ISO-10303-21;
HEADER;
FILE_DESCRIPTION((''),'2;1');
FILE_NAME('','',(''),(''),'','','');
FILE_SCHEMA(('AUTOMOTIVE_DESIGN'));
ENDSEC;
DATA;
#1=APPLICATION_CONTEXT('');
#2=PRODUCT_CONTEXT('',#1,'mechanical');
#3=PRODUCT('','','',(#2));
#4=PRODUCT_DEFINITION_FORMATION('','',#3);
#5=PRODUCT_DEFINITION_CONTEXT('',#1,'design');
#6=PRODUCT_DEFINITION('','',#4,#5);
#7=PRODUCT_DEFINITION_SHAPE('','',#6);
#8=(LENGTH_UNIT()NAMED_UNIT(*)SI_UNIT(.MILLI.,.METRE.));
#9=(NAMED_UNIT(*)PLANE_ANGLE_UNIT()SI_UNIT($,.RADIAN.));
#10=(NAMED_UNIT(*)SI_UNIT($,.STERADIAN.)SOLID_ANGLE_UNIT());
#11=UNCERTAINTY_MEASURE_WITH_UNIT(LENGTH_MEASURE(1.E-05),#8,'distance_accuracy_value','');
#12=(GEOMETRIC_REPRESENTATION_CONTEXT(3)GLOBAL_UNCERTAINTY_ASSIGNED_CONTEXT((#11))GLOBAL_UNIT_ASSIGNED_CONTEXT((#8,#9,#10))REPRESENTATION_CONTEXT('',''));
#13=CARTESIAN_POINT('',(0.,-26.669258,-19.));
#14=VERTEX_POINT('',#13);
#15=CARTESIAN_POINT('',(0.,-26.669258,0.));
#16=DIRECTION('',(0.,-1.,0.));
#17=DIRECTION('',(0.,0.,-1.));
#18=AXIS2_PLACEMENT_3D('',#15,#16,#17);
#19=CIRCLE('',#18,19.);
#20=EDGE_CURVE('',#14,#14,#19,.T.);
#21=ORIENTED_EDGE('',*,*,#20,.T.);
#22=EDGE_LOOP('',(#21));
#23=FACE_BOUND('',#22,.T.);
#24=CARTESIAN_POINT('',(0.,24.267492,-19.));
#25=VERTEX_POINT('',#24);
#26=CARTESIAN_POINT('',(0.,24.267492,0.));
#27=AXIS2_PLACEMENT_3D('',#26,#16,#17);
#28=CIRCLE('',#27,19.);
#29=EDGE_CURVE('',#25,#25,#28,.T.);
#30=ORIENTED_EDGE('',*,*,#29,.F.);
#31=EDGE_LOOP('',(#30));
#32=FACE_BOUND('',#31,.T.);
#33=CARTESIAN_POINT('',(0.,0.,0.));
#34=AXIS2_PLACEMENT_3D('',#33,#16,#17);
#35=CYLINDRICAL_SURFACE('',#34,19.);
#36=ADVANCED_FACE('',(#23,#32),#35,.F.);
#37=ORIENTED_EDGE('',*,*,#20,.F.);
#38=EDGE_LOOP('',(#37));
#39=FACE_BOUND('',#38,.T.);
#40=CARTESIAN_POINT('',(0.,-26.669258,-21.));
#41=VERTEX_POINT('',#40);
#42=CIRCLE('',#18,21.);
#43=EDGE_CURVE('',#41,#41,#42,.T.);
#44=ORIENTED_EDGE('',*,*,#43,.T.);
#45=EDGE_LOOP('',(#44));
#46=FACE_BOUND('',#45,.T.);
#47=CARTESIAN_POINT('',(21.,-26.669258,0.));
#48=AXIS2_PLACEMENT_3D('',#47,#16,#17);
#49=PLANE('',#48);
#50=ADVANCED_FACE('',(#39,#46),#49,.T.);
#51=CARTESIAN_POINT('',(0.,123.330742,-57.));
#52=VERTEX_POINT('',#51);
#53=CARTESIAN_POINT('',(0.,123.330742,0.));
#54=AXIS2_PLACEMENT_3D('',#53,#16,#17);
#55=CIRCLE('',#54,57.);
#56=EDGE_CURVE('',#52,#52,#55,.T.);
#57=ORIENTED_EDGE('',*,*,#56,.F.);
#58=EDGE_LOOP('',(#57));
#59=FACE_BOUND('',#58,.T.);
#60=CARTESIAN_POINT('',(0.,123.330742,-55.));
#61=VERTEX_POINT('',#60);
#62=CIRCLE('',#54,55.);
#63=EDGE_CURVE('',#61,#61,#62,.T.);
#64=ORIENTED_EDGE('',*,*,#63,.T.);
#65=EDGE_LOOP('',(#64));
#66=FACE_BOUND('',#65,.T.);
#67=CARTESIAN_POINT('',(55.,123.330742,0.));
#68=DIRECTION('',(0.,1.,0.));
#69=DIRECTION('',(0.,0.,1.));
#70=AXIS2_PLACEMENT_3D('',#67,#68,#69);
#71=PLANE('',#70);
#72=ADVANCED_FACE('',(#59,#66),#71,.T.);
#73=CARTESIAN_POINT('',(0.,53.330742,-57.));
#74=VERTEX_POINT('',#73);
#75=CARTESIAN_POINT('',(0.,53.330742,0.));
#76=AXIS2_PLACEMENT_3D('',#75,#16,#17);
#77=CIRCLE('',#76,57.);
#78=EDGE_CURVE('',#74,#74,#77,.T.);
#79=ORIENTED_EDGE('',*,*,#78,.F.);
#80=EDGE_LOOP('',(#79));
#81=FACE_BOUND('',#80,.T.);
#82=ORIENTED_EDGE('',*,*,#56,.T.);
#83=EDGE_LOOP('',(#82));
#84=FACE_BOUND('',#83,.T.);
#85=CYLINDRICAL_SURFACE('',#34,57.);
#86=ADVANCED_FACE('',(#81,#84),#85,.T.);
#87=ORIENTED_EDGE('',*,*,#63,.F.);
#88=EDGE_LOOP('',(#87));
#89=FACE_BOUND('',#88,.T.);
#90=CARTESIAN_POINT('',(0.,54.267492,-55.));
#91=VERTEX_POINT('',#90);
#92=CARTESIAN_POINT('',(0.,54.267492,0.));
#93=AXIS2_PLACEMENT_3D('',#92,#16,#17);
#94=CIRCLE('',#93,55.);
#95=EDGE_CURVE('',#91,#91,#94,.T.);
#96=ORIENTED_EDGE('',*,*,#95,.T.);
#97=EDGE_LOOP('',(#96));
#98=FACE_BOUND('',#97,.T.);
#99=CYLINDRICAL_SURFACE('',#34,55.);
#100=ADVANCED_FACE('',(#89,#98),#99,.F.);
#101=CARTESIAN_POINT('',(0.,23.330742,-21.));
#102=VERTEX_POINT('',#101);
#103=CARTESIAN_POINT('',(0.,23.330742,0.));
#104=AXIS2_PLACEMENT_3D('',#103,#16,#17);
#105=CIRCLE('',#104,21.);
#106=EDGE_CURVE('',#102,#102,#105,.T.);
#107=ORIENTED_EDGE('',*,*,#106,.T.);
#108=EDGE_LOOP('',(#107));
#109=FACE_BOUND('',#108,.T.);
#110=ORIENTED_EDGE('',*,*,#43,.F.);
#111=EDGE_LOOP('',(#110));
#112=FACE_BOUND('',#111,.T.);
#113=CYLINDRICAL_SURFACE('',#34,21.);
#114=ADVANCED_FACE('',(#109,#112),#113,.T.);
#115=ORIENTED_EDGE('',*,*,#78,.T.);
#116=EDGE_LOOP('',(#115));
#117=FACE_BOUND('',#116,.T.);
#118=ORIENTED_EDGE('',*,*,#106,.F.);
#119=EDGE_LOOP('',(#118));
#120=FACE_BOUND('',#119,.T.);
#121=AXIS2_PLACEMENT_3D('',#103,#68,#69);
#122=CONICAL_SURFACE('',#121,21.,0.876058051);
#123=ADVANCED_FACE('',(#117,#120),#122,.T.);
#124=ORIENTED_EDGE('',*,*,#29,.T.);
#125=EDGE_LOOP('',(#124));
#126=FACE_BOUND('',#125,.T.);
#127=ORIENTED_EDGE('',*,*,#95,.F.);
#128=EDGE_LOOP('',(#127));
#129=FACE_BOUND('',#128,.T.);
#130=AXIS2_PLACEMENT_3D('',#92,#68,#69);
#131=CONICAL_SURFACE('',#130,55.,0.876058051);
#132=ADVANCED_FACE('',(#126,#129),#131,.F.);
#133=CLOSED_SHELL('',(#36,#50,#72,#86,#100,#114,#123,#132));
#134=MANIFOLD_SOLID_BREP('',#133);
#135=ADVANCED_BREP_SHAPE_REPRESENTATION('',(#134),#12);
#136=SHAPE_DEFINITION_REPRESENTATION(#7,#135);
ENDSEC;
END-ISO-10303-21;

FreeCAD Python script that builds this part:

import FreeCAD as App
import Part
import Sketcher


def add_polygon(sketch, points):
    """Adds a closed chain of lines whose ends are joined by coincident constraints."""
    first, n = sketch.GeometryCount, len(points)
    for a, b in zip(points, points[1:] + points[:1]):
        sketch.addGeometry(Part.LineSegment(App.Vector(*a, 0), App.Vector(*b, 0)), False)
    for i in range(n):
        sketch.addConstraint(Sketcher.Constraint("Coincident", first + i, 2, first + (i + 1) % n, 1))

doc = App.newDocument("Part")
body = doc.addObject("PartDesign::Body", "Body")

# Sketch on XY plane
sketch1 = body.newObject("Sketcher::SketchObject", "Sketch")
sketch1.AttachmentSupport = (doc.getObject("XY_Plane"), [""])
sketch1.MapMode = "FlatFace"
add_polygon(sketch1, [(19, 24.267492), (19, -26.669258), (21, -26.669258), (21, 23.330742), (57, 53.330742), (57, 123.330742), (55, 123.330742), (55, 54.267492)])  # lines 0-7
sketch1.addConstraint(Sketcher.Constraint("Vertical", 0))
sketch1.addConstraint(Sketcher.Constraint("Horizontal", 1))
sketch1.addConstraint(Sketcher.Constraint("Vertical", 2))
sketch1.addConstraint(Sketcher.Constraint("Vertical", 4))
sketch1.addConstraint(Sketcher.Constraint("Horizontal", 5))
sketch1.addConstraint(Sketcher.Constraint("Vertical", 6))
sketch1.addConstraint(Sketcher.Constraint("Parallel", 3, 7))
sketch1.addConstraint(Sketcher.Constraint("Equal", 1, 5))
sketch1.addConstraint(Sketcher.Constraint("DistanceX", 1, 1, 1, 2, 2.0))
sketch1.addConstraint(Sketcher.Constraint("DistanceY", 2, 1, 2, 2, 50.0))
sketch1.addConstraint(Sketcher.Constraint("DistanceY", 4, 1, 4, 2, 70.0))
sketch1.addConstraint(Sketcher.Constraint("DistanceX", -1, 1, 0, 2, 19.0))
sketch1.addConstraint(Sketcher.Constraint("DistanceX", -1, 1, 3, 2, 57.0))
sketch1.addConstraint(Sketcher.Constraint("DistanceY", 2, 2, 3, 2, 30.0))
sketch1.addConstraint(Sketcher.Constraint("DistanceY", 0, 2, 0, 1, 50.93675))
sketch1.addConstraint(Sketcher.Constraint("DistanceY", 0, 2, -1, 1, 26.669258))
revolution = body.newObject("PartDesign::Revolution", "Revolution")
revolution.Profile = sketch1
revolution.ReferenceAxis = (sketch1, ["V_Axis"])
revolution.Angle = 360

doc.recompute()
